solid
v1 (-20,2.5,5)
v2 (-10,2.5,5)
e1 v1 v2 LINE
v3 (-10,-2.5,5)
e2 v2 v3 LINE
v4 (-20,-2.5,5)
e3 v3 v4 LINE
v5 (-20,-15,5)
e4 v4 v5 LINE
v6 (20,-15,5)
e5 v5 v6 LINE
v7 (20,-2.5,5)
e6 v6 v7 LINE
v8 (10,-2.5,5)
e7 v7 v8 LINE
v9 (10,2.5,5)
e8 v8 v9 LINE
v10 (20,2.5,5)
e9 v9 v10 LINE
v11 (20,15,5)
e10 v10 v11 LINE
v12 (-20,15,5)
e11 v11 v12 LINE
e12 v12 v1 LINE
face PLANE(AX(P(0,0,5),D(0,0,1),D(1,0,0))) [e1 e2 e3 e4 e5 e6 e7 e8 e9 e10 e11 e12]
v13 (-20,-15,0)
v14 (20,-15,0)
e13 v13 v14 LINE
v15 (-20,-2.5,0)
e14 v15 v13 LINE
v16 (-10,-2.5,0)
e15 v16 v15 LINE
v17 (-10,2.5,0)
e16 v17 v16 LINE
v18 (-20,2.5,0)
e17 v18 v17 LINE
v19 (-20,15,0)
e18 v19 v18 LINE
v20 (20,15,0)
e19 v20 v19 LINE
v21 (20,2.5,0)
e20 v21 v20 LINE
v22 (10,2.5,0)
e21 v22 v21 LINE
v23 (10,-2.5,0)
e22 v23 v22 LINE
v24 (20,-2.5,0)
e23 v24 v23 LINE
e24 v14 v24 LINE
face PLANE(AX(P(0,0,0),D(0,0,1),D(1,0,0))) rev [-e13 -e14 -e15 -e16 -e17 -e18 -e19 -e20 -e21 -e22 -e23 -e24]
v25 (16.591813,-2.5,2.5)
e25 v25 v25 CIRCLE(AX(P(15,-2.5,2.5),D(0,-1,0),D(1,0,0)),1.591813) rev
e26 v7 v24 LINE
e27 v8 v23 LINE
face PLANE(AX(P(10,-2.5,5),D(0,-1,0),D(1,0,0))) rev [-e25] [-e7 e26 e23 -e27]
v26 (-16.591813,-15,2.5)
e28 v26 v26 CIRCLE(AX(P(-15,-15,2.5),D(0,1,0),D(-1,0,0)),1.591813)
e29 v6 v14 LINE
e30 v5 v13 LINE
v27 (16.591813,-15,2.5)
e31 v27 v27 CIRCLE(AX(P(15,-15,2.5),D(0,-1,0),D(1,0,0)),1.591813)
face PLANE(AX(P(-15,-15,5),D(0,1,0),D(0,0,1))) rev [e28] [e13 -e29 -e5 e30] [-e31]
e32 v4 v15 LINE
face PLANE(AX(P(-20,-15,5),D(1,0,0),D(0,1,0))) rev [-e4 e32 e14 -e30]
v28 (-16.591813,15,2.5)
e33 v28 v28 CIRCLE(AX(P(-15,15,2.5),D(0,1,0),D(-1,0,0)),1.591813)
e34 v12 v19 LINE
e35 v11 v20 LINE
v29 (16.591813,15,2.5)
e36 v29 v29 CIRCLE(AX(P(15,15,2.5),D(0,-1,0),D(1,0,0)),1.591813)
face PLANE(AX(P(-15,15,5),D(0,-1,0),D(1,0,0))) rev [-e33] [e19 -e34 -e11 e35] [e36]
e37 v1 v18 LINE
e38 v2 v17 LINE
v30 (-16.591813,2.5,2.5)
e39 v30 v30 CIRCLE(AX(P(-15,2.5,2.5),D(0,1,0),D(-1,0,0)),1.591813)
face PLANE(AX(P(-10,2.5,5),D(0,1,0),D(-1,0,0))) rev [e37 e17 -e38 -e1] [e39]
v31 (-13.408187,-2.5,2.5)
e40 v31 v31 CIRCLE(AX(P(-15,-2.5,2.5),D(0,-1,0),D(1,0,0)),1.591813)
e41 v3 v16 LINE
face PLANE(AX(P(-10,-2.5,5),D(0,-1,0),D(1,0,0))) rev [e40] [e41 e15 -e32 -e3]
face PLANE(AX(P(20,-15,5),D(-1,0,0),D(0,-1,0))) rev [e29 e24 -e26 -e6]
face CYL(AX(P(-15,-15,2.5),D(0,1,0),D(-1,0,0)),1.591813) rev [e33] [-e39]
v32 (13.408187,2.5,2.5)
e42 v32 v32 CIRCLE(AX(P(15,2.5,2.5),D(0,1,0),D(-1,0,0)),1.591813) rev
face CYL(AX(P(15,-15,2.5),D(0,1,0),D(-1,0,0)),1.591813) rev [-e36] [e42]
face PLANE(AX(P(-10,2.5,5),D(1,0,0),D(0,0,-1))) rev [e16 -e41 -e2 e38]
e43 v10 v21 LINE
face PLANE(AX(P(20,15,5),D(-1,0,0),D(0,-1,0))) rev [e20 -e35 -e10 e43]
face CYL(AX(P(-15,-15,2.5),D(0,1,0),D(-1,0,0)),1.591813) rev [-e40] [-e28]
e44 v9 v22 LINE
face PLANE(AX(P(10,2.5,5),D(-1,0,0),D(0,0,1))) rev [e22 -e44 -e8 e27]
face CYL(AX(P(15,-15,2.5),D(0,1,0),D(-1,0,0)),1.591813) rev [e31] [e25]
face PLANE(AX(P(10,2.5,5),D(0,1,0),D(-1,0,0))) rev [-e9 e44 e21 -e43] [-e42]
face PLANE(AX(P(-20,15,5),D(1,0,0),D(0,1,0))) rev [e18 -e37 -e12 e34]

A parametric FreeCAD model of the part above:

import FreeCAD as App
import Part
import Sketcher
from FreeCAD import Vector


def add_polygon(sketch, points):
    """Adds a closed chain of lines whose ends are joined by coincident constraints."""
    first, n = sketch.GeometryCount, len(points)
    for a, b in zip(points, points[1:] + points[:1]):
        sketch.addGeometry(Part.LineSegment(App.Vector(*a, 0), App.Vector(*b, 0)), False)
    for i in range(n):
        sketch.addConstraint(Sketcher.Constraint("Coincident", first + i, 2, first + (i + 1) % n, 1))

doc = App.newDocument("Part")
body = doc.addObject("PartDesign::Body", "Body")

sketch1 = body.newObject("Sketcher::SketchObject", "Sketch")
sketch1.AttachmentSupport = (doc.getObject("XY_Plane"), [""])
sketch1.MapMode = "FlatFace"
add_polygon(sketch1, [(20, 15), (-20, 15), (-20, 2), (-10, 2), (-10, -2), (-20, -2), (-20, -15), (20, -15), (20, -2), (10, -2), (10, 2), (20, 2)])
sketch1.addConstraint([
    Sketcher.Constraint("Horizontal", 0),
    Sketcher.Constraint("Vertical", 1),
    Sketcher.Constraint("Horizontal", 2),
    Sketcher.Constraint("Vertical", 3),
    Sketcher.Constraint("Horizontal", 4),
    Sketcher.Constraint("Vertical", 5),
    Sketcher.Constraint("Horizontal", 6),
    Sketcher.Constraint("Vertical", 7),
    Sketcher.Constraint("Horizontal", 8),
    Sketcher.Constraint("Vertical", 9),
    Sketcher.Constraint("Horizontal", 10),
    Sketcher.Constraint("Vertical", 11),
    Sketcher.Constraint("Symmetric", 0, 2, 6, 2, -1, 1),
    Sketcher.Constraint("Symmetric", 2, 2, 8, 2, -1, 1),
    Sketcher.Constraint("Symmetric", 4, 2, 10, 2, -1, 1),
    Sketcher.Constraint("Symmetric", 4, 2, 7, 2, -2),
    Sketcher.Constraint("DistanceX", 0, 2, 0, 1, 40.0),
    Sketcher.Constraint("DistanceX", 2, 1, 2, 2, 10.0),
    Sketcher.Constraint("DistanceY", 3, 2, 3, 1, 5.0),
    Sketcher.Constraint("DistanceY", 1, 2, 1, 1, 12.5),
])
pad1 = body.newObject("PartDesign::Pad", "Pad")
pad1.Profile = sketch1
pad1.Length = 5

sketch2 = body.newObject("Sketcher::SketchObject", "Sketch001")
sketch2.AttachmentSupport = (doc.getObject("XZ_Plane"), [""])
sketch2.MapMode = "FlatFace"
sketch2.AttachmentOffset = App.Placement(Vector(0, 0, -15), App.Rotation())
sketch2.addGeometry(Part.Circle(Vector(-15, 2.5, 0), Vector(0, 0, 1), 1.6), False)
sketch2.addConstraint([
    Sketcher.Constraint("DistanceX", 0, 3, -1, 1, 15.0),
    Sketcher.Constraint("DistanceY", -1, 1, 0, 3, 2.5),
    Sketcher.Constraint("Diameter", 0, 3.183625),
])
pocket1 = body.newObject("PartDesign::Pocket", "Pocket")
pocket1.Profile = sketch2
pocket1.Type = "ThroughAll"
pocket1.Reversed = True
doc.recompute()

mirrored = body.newObject("PartDesign::Mirrored", "Mirrored")
mirrored.Originals = [pocket1]
mirrored.MirrorPlane = (doc.getObject("YZ_Plane"), [""])
body.Tip = mirrored

doc.recompute()
